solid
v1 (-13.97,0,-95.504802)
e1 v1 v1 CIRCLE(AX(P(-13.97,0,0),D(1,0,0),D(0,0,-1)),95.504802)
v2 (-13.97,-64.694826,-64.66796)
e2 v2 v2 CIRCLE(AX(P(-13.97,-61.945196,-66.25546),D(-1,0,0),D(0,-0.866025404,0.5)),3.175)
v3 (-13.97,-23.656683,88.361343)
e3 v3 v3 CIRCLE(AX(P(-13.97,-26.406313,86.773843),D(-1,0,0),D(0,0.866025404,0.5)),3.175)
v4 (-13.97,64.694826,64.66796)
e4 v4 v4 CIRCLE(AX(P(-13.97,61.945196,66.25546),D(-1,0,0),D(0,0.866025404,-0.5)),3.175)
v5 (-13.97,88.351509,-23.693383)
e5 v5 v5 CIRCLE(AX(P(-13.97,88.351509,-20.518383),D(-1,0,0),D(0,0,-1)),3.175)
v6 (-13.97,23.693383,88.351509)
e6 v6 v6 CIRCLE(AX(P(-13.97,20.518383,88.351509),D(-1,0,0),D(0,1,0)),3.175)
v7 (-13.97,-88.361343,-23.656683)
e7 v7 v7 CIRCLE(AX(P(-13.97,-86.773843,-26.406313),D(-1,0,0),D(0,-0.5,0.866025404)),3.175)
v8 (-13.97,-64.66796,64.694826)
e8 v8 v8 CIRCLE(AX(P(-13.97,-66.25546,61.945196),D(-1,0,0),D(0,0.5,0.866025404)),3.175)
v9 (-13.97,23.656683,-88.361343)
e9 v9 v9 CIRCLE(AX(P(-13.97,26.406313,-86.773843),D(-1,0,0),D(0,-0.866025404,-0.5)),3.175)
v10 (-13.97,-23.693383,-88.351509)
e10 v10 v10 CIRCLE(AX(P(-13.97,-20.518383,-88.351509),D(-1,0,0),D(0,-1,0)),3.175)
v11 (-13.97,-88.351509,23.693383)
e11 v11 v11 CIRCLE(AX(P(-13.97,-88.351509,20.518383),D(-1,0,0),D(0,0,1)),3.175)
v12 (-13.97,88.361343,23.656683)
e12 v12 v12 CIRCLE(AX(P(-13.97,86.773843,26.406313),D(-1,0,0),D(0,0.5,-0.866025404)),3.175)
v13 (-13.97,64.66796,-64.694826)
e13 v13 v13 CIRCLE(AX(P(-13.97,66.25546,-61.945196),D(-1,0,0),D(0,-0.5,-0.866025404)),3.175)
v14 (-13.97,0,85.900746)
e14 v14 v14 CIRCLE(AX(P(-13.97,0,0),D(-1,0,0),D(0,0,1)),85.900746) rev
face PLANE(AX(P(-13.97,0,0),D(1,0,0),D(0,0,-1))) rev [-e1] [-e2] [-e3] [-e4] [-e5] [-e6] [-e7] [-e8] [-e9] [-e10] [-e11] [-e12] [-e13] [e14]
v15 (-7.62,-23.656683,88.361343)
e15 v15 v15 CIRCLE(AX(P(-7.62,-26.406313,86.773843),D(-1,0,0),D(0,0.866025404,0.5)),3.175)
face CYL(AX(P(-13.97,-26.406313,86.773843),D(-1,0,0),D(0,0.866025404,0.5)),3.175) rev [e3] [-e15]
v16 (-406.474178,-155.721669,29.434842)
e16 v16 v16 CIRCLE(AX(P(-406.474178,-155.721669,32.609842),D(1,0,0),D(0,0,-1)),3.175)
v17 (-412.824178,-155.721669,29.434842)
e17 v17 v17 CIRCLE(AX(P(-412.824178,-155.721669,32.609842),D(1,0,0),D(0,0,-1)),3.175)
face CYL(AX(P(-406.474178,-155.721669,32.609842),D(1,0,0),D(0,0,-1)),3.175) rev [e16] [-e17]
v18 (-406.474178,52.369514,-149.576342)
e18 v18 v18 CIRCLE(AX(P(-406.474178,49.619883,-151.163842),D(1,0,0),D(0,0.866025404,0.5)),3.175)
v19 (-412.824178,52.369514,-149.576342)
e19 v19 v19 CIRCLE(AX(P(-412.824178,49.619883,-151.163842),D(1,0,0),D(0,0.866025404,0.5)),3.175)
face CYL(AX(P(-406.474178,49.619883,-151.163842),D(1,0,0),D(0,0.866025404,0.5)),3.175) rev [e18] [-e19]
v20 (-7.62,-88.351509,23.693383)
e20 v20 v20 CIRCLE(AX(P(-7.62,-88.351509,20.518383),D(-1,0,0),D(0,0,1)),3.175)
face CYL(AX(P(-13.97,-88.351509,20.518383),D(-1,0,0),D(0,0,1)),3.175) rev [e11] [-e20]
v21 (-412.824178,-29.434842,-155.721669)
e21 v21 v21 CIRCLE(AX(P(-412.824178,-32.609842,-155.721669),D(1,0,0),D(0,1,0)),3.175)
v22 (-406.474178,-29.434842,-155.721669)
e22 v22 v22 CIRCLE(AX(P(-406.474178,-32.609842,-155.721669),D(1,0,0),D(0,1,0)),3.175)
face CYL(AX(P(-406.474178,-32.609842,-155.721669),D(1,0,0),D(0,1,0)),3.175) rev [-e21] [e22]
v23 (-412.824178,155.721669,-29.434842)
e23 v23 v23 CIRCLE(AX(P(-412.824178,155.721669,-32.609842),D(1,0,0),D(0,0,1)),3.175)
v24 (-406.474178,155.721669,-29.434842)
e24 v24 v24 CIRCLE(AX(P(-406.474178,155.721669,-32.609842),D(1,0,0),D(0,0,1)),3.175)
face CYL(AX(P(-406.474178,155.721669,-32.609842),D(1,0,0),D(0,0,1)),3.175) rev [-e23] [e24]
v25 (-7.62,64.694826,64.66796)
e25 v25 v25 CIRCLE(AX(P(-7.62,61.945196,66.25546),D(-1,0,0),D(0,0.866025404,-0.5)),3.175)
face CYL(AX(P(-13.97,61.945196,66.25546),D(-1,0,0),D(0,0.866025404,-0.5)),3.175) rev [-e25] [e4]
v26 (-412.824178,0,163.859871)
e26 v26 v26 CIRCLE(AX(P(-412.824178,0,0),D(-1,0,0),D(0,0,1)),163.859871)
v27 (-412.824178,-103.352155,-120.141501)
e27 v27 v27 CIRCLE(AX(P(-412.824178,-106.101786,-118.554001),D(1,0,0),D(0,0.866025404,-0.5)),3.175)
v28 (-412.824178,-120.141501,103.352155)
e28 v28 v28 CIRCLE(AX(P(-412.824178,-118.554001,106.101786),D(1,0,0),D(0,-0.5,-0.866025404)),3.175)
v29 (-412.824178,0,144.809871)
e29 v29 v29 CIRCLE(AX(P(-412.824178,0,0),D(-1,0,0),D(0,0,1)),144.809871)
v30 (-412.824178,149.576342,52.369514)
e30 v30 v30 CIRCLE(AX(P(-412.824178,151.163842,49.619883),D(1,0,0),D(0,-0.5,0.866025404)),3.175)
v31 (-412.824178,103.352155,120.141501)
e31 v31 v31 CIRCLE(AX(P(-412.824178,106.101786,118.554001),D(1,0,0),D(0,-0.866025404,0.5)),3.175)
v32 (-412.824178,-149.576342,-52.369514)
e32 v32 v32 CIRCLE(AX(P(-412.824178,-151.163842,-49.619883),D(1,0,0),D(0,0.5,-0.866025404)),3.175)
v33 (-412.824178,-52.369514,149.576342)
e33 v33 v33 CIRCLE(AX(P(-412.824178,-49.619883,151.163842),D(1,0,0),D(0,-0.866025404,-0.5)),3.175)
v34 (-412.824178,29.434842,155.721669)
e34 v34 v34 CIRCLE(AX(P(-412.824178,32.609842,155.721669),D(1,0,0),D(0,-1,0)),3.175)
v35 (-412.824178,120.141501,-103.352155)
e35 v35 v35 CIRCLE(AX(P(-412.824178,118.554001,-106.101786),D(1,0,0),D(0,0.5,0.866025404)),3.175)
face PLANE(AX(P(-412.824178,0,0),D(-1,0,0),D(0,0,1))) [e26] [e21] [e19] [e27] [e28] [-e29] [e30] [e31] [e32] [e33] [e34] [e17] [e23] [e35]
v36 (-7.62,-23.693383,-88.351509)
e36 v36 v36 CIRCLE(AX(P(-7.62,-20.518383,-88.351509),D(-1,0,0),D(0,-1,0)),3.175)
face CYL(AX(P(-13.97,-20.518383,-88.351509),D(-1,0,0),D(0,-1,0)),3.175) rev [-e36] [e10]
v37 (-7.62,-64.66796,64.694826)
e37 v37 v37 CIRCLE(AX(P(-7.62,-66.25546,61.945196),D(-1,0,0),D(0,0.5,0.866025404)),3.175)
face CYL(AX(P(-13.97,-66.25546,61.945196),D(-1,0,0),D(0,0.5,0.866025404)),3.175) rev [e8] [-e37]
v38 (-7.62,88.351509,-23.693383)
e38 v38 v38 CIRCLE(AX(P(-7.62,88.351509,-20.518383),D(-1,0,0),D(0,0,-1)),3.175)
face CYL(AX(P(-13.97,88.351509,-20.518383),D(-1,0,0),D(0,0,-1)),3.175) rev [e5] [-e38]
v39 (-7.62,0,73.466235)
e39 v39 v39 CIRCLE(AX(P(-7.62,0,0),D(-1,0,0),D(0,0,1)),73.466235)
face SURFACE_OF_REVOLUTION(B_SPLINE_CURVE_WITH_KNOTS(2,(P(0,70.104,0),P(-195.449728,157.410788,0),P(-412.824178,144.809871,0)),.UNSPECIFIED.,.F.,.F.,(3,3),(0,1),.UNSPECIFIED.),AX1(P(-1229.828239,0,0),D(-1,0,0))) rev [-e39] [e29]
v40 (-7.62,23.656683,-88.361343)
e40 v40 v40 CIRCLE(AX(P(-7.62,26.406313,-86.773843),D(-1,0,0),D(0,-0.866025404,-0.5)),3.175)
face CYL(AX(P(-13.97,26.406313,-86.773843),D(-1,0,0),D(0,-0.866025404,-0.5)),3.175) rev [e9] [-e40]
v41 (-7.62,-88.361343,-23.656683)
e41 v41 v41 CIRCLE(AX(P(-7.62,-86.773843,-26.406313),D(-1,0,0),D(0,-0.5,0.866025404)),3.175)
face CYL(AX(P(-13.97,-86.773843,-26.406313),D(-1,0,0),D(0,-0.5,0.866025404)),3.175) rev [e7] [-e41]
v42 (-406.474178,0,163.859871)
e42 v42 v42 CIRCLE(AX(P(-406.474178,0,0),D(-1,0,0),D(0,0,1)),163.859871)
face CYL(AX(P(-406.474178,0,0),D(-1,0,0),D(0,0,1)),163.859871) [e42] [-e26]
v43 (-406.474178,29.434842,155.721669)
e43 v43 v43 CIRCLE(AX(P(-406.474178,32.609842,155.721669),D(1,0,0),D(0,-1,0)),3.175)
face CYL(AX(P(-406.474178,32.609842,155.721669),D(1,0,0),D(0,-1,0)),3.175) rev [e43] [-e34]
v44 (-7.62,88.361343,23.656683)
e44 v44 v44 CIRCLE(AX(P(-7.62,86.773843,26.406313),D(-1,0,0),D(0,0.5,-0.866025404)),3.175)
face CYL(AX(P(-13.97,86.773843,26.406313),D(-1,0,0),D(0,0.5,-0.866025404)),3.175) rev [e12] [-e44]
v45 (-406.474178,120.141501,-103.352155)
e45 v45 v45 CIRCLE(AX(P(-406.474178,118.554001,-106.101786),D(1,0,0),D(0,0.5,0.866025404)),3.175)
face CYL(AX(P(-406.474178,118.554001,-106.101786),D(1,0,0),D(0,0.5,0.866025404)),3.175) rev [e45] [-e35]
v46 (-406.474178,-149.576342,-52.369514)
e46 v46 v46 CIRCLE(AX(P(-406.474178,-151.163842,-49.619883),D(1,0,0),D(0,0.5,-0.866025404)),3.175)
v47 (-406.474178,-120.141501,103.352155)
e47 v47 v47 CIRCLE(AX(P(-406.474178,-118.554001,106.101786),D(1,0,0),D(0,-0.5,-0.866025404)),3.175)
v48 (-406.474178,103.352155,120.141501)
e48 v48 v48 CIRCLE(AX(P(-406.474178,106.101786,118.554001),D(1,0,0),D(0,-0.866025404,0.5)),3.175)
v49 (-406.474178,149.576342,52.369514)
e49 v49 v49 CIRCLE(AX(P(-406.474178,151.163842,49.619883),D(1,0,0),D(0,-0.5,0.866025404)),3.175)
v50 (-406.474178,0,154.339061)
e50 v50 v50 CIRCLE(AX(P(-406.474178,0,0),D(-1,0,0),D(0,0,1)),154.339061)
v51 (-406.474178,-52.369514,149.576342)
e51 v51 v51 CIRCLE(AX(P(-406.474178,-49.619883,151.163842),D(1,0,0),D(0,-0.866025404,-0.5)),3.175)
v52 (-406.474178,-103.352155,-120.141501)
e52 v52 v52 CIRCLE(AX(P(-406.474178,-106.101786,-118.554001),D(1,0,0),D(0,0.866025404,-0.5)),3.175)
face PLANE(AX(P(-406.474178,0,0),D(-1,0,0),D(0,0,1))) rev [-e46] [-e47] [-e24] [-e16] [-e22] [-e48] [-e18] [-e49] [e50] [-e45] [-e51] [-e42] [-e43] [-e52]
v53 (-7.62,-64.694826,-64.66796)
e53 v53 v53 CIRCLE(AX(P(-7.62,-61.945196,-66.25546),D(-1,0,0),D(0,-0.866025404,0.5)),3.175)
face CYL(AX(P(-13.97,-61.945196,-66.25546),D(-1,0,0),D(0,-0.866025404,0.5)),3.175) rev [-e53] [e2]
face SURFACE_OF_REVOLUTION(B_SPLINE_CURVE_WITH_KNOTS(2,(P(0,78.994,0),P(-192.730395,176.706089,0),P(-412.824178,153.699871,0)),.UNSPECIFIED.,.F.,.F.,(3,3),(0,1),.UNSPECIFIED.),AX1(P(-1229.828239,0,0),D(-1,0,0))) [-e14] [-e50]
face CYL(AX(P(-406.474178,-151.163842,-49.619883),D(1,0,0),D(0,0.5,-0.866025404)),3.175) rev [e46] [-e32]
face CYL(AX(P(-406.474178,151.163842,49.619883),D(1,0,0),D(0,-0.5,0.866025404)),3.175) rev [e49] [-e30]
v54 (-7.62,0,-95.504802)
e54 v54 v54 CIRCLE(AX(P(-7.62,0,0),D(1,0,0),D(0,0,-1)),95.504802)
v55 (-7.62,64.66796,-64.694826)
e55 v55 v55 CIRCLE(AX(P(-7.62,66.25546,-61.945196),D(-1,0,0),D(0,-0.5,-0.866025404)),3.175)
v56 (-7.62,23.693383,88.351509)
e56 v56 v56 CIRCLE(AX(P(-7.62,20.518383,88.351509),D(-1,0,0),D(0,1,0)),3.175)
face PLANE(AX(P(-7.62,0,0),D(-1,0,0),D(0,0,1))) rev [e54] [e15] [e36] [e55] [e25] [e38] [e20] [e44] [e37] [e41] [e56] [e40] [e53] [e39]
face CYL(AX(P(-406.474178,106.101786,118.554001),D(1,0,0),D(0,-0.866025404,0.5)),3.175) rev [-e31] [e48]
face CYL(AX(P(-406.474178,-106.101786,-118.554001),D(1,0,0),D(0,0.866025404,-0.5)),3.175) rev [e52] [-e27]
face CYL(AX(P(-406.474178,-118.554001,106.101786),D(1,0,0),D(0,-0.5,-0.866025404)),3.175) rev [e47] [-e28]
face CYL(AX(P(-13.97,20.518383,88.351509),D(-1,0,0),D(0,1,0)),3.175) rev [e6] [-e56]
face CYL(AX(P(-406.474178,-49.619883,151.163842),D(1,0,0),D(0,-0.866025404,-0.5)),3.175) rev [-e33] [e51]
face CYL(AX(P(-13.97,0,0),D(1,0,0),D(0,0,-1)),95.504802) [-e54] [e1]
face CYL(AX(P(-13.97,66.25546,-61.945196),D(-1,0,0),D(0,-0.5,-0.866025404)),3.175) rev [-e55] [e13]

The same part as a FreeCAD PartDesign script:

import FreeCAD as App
import Part
import Sketcher
from FreeCAD import Vector
Q = App.Units.Quantity

doc = App.newDocument("Part")
body = doc.addObject("PartDesign::Body", "Body")

# Sketch on XY plane
sketch1 = doc.addObject("Sketcher::SketchObject", "Sketch")
body.addObject(sketch1)
sketch1.AttachmentSupport = (doc.XY_Plane, [""])
sketch1.MapMode = "FlatFace"
sketch1.addGeometry(Part.BSplineCurve([Vector(0, 78.994, 0), Vector(170.262089, 327.756991, 0), Vector(500, 339.09, 0)], [3, 3], [0, 1], False, 2, [1, 1, 1], False), False)
sketch1.addGeometry(Part.BSplineCurve([Vector(0, 78.994, 0), Vector(-192.730395, 176.706089, 0), Vector(-412.824178, 153.699871, 0)], [3, 3], [0, 1], False, 2, [1, 1, 1], False), False)
sketch1.addGeometry(Part.LineSegment(Vector(-412.824178, 153.699871, 0), Vector(-412.824178, 144.809871, 0)), False)
sketch1.addGeometry(Part.BSplineCurve([Vector(0, 70.104, 0), Vector(-195.449728, 157.410788, 0), Vector(-412.824178, 144.809871, 0)], [3, 3], [0, 1], False, 2, [1, 1, 1], False), False)
sketch1.addGeometry(Part.BSplineCurve([Vector(0, 70.104, 0), Vector(170.262089, 318.866991, 0), Vector(500, 330.2, 0)], [3, 3], [0, 1], False, 2, [1, 1, 1], False), False)
sketch1.addGeometry(Part.LineSegment(Vector(500, 330.2, 0), Vector(500, 339.09, 0)), False)
sketch1.addConstraint(Sketcher.Constraint("Block", 0))
sketch1.addConstraint(Sketcher.Constraint("Block", 1))
sketch1.addConstraint(Sketcher.Constraint("Block", 3))
sketch1.addConstraint(Sketcher.Constraint("Block", 4))
sketch1.addConstraint(Sketcher.Constraint("Coincident", 1, 2, 2, 1))
sketch1.addConstraint(Sketcher.Constraint("Coincident", 2, 2, 3, 2))
sketch1.addConstraint(Sketcher.Constraint("Coincident", 4, 2, 5, 1))
sketch1.addConstraint(Sketcher.Constraint("Coincident", 5, 2, 0, 2))
revolution = doc.addObject("PartDesign::Revolution", "Revolution")
body.addObject(revolution)
revolution.Profile = sketch1
revolution.ReferenceAxis = (sketch1, ["H_Axis"])
revolution.Angle = 360

# Sketch on YZ plane
sketch2 = doc.addObject("Sketcher::SketchObject", "Sketch001")
body.addObject(sketch2)
sketch2.AttachmentSupport = (doc.YZ_Plane, [""])
sketch2.MapMode = "FlatFace"
sketch2.AttachmentOffset = App.Placement(Vector(0, 0, -0.3 * 25.4), App.Rotation())
sketch2.addGeometry(Part.LineSegment(Vector(639, -1213, 0), Vector(-446, -1213, 0)), False)
sketch2.addGeometry(Part.LineSegment(Vector(-446, -1213, 0), Vector(-446, 1086, 0)), False)
sketch2.addGeometry(Part.LineSegment(Vector(-446, 1086, 0), Vector(639, 1086, 0)), False)
sketch2.addGeometry(Part.LineSegment(Vector(639, 1086, 0), Vector(639, -1213, 0)), False)
sketch2.addConstraint(Sketcher.Constraint("Coincident", 0, 2, 1, 1))
sketch2.addConstraint(Sketcher.Constraint("Coincident", 1, 2, 2, 1))
sketch2.addConstraint(Sketcher.Constraint("Coincident", 2, 2, 3, 1))
sketch2.addConstraint(Sketcher.Constraint("Coincident", 3, 2, 0, 1))
sketch2.addConstraint(Sketcher.Constraint("Horizontal", 0))
sketch2.addConstraint(Sketcher.Constraint("Vertical", 1))
sketch2.addConstraint(Sketcher.Constraint("Horizontal", 2))
sketch2.addConstraint(Sketcher.Constraint("Vertical", 3))
sketch2.addConstraint(Sketcher.Constraint("DistanceX", 0, 2, 0, 1, Q("1084.867048 mm")))
sketch2.addConstraint(Sketcher.Constraint("DistanceY", 1, 1, 1, 2, Q("2299.140163 mm")))
sketch2.addConstraint(Sketcher.Constraint("DistanceY", 0, 2, -1, 1, Q("1213.228619 mm")))
sketch2.addConstraint(Sketcher.Constraint("DistanceX", 0, 2, -1, 1, Q("445.952813 mm")))
pocket1 = doc.addObject("PartDesign::Pocket", "Pocket")
body.addObject(pocket1)
pocket1.Profile = sketch2
pocket1.Length = Q("30.79 in")
pocket1.Reversed = True

# Sketch on YZ plane
sketch3 = doc.addObject("Sketcher::SketchObject", "Sketch002")
body.addObject(sketch3)
sketch3.AttachmentSupport = (doc.YZ_Plane, [""])
sketch3.MapMode = "FlatFace"
sketch3.AttachmentOffset = App.Placement(Vector(0, 0, -0.3 * 25.4), App.Rotation())
sketch3.addGeometry(Part.Circle(Vector(0, 0, 0), Vector(0, 0, 1), 96), False)
sketch3.addGeometry(Part.Circle(Vector(0, 0, 0), Vector(0, 0, 1), 83), False)
sketch3.addConstraint(Sketcher.Constraint("Coincident", 0, 3, -1, 1))
sketch3.addConstraint(Sketcher.Constraint("Coincident", 1, 3, -1, 1))
sketch3.addConstraint(Sketcher.Constraint("Diameter", 0, Q("191.009603 mm")))
sketch3.addConstraint(Sketcher.Constraint("Diameter", 1, Q("165.609603 mm")))
pad1 = doc.addObject("PartDesign::Pad", "Pad")
body.addObject(pad1)
pad1.Profile = sketch3
pad1.Length = Q("0.25 in")
pad1.Reversed = True

# Sketch on YZ plane
sketch4 = doc.addObject("Sketcher::SketchObject", "Sketch003")
body.addObject(sketch4)
sketch4.AttachmentSupport = (doc.YZ_Plane, [""])
sketch4.MapMode = "FlatFace"
sketch4.AttachmentOffset = App.Placement(Vector(0, 0, -412.824178), App.Rotation())
sketch4.addGeometry(Part.Circle(Vector(0, 0, 0), Vector(0, 0, 1), 164), False)
sketch4.addGeometry(Part.Circle(Vector(0, 0, 0), Vector(0, 0, 1), 154), False)
sketch4.addConstraint(Sketcher.Constraint("Coincident", 0, 3, -1, 1))
sketch4.addConstraint(Sketcher.Constraint("Coincident", 1, 3, -1, 1))
sketch4.addConstraint(Sketcher.Constraint("Diameter", 0, Q("327.719742 mm")))
sketch4.addConstraint(Sketcher.Constraint("Diameter", 1, Q("307.399742 mm")))
pad2 = doc.addObject("PartDesign::Pad", "Pad001")
body.addObject(pad2)
pad2.Profile = sketch4
pad2.Length = Q("0.25 in")

# Sketch on XZ plane
sketch5 = doc.addObject("Sketcher::SketchObject", "Sketch004")
body.addObject(sketch5)
sketch5.AttachmentSupport = (doc.XZ_Plane, [""])
sketch5.MapMode = "FlatFace"
sketch5.AttachmentOffset = App.Placement(Vector(0, 0, 88.351509), App.Rotation())
sketch5.addGeometry(Part.LineSegment(Vector(-5.7, 20.5, 0), Vector(-14, 20.5, 0)), False)
sketch5.addGeometry(Part.LineSegment(Vector(-14, 20.5, 0), Vector(-14, 23.7, 0)), False)
sketch5.addGeometry(Part.LineSegment(Vector(-14, 23.7, 0), Vector(-7.6, 23.7, 0)), False)
sketch5.addGeometry(Part.LineSegment(Vector(-7.6, 23.7, 0), Vector(-5.7, 20.5, 0)), False)
sketch5.addGeometry(Part.LineSegment(Vector(-14, 20.5, 0), Vector(-5.7, 20.5, 0)), True)  # axis
sketch5.addConstraint(Sketcher.Constraint("Coincident", 0, 2, 1, 1))
sketch5.addConstraint(Sketcher.Constraint("Coincident", 1, 2, 2, 1))
sketch5.addConstraint(Sketcher.Constraint("Coincident", 2, 2, 3, 1))
sketch5.addConstraint(Sketcher.Constraint("Coincident", 3, 2, 0, 1))
sketch5.addConstraint(Sketcher.Constraint("Horizontal", 0))
sketch5.addConstraint(Sketcher.Constraint("Vertical", 1))
sketch5.addConstraint(Sketcher.Constraint("Horizontal", 2))
sketch5.addConstraint(Sketcher.Constraint("Horizontal", 4))
sketch5.addConstraint(Sketcher.Constraint("Coincident", 4, 1, 0, 2))
sketch5.addConstraint(Sketcher.Constraint("Equal", 0, 4))
sketch5.addConstraint(Sketcher.Constraint("Angle", 3, Q("-59 deg")))
sketch5.addConstraint(Sketcher.Constraint("DistanceX", 2, 1, 2, 2, Q("0.25 in")))
sketch5.addConstraint(Sketcher.Constraint("DistanceX", 2, 2, -1, 1, Q("0.3 in")))
sketch5.addConstraint(Sketcher.Constraint("DistanceY", 1, 1, 1, 2, Q("0.125 in")))
sketch5.addConstraint(Sketcher.Constraint("DistanceY", -1, 1, 0, 2, Q("20.518383 mm")))
groove = doc.addObject("PartDesign::Groove", "Groove")
body.addObject(groove)
groove.Profile = sketch5
groove.ReferenceAxis = (sketch5, ["Axis0"])
groove.Angle = 360
doc.recompute()

polarpattern = doc.addObject("PartDesign::PolarPattern", "PolarPattern")
body.addObject(polarpattern)
polarpattern.Originals = [groove]
polarpattern.Axis = (doc.X_Axis, [""])
polarpattern.Angle = 360
polarpattern.Occurrences = 12
body.Tip = polarpattern

# Sketch on XZ plane
sketch6 = doc.addObject("Sketcher::SketchObject", "Sketch005")
body.addObject(sketch6)
sketch6.AttachmentSupport = (doc.XZ_Plane, [""])
sketch6.MapMode = "FlatFace"
sketch6.AttachmentOffset = App.Placement(Vector(0, 0, 155.721669), App.Rotation())
sketch6.addGeometry(Part.LineSegment(Vector(-414.7, 32.6, 0), Vector(-406.5, 32.6, 0)), False)
sketch6.addGeometry(Part.LineSegment(Vector(-406.5, 32.6, 0), Vector(-406.5, 29.4, 0)), False)
sketch6.addGeometry(Part.LineSegment(Vector(-406.5, 29.4, 0), Vector(-412.8, 29.4, 0)), False)
sketch6.addGeometry(Part.LineSegment(Vector(-412.8, 29.4, 0), Vector(-414.7, 32.6, 0)), False)
sketch6.addGeometry(Part.LineSegment(Vector(-406.5, 32.6, 0), Vector(-414.7, 32.6, 0)), True)  # axis
sketch6.addConstraint(Sketcher.Constraint("Coincident", 0, 2, 1, 1))
sketch6.addConstraint(Sketcher.Constraint("Coincident", 1, 2, 2, 1))
sketch6.addConstraint(Sketcher.Constraint("Coincident", 2, 2, 3, 1))
sketch6.addConstraint(Sketcher.Constraint("Coincident", 3, 2, 0, 1))
sketch6.addConstraint(Sketcher.Constraint("Horizontal", 0))
sketch6.addConstraint(Sketcher.Constraint("Vertical", 1))
sketch6.addConstraint(Sketcher.Constraint("Horizontal", 2))
sketch6.addConstraint(Sketcher.Constraint("Horizontal", 4))
sketch6.addConstraint(Sketcher.Constraint("Coincident", 4, 1, 0, 2))
sketch6.addConstraint(Sketcher.Constraint("Equal", 0, 4))
sketch6.addConstraint(Sketcher.Constraint("Angle", 3, Q("121 deg")))
sketch6.addConstraint(Sketcher.Constraint("DistanceX", 2, 2, 2, 1, Q("0.25 in")))
sketch6.addConstraint(Sketcher.Constraint("DistanceY", 1, 2, 1, 1, Q("0.125 in")))
sketch6.addConstraint(Sketcher.Constraint("DistanceX", 0, 2, -1, 1, Q("406.474178 mm")))
sketch6.addConstraint(Sketcher.Constraint("DistanceY", -1, 1, 0, 2, Q("32.609842 mm")))
groove2 = doc.addObject("PartDesign::Groove", "Groove001")
body.addObject(groove2)
groove2.Profile = sketch6
groove2.ReferenceAxis = (sketch6, ["Axis0"])
groove2.Angle = 360
doc.recompute()

polarpattern2 = doc.addObject("PartDesign::PolarPattern", "PolarPattern001")
body.addObject(polarpattern2)
polarpattern2.Originals = [groove2]
polarpattern2.Axis = (doc.X_Axis, [""])
polarpattern2.Angle = 360
polarpattern2.Occurrences = 12
body.Tip = polarpattern2

doc.recompute()
